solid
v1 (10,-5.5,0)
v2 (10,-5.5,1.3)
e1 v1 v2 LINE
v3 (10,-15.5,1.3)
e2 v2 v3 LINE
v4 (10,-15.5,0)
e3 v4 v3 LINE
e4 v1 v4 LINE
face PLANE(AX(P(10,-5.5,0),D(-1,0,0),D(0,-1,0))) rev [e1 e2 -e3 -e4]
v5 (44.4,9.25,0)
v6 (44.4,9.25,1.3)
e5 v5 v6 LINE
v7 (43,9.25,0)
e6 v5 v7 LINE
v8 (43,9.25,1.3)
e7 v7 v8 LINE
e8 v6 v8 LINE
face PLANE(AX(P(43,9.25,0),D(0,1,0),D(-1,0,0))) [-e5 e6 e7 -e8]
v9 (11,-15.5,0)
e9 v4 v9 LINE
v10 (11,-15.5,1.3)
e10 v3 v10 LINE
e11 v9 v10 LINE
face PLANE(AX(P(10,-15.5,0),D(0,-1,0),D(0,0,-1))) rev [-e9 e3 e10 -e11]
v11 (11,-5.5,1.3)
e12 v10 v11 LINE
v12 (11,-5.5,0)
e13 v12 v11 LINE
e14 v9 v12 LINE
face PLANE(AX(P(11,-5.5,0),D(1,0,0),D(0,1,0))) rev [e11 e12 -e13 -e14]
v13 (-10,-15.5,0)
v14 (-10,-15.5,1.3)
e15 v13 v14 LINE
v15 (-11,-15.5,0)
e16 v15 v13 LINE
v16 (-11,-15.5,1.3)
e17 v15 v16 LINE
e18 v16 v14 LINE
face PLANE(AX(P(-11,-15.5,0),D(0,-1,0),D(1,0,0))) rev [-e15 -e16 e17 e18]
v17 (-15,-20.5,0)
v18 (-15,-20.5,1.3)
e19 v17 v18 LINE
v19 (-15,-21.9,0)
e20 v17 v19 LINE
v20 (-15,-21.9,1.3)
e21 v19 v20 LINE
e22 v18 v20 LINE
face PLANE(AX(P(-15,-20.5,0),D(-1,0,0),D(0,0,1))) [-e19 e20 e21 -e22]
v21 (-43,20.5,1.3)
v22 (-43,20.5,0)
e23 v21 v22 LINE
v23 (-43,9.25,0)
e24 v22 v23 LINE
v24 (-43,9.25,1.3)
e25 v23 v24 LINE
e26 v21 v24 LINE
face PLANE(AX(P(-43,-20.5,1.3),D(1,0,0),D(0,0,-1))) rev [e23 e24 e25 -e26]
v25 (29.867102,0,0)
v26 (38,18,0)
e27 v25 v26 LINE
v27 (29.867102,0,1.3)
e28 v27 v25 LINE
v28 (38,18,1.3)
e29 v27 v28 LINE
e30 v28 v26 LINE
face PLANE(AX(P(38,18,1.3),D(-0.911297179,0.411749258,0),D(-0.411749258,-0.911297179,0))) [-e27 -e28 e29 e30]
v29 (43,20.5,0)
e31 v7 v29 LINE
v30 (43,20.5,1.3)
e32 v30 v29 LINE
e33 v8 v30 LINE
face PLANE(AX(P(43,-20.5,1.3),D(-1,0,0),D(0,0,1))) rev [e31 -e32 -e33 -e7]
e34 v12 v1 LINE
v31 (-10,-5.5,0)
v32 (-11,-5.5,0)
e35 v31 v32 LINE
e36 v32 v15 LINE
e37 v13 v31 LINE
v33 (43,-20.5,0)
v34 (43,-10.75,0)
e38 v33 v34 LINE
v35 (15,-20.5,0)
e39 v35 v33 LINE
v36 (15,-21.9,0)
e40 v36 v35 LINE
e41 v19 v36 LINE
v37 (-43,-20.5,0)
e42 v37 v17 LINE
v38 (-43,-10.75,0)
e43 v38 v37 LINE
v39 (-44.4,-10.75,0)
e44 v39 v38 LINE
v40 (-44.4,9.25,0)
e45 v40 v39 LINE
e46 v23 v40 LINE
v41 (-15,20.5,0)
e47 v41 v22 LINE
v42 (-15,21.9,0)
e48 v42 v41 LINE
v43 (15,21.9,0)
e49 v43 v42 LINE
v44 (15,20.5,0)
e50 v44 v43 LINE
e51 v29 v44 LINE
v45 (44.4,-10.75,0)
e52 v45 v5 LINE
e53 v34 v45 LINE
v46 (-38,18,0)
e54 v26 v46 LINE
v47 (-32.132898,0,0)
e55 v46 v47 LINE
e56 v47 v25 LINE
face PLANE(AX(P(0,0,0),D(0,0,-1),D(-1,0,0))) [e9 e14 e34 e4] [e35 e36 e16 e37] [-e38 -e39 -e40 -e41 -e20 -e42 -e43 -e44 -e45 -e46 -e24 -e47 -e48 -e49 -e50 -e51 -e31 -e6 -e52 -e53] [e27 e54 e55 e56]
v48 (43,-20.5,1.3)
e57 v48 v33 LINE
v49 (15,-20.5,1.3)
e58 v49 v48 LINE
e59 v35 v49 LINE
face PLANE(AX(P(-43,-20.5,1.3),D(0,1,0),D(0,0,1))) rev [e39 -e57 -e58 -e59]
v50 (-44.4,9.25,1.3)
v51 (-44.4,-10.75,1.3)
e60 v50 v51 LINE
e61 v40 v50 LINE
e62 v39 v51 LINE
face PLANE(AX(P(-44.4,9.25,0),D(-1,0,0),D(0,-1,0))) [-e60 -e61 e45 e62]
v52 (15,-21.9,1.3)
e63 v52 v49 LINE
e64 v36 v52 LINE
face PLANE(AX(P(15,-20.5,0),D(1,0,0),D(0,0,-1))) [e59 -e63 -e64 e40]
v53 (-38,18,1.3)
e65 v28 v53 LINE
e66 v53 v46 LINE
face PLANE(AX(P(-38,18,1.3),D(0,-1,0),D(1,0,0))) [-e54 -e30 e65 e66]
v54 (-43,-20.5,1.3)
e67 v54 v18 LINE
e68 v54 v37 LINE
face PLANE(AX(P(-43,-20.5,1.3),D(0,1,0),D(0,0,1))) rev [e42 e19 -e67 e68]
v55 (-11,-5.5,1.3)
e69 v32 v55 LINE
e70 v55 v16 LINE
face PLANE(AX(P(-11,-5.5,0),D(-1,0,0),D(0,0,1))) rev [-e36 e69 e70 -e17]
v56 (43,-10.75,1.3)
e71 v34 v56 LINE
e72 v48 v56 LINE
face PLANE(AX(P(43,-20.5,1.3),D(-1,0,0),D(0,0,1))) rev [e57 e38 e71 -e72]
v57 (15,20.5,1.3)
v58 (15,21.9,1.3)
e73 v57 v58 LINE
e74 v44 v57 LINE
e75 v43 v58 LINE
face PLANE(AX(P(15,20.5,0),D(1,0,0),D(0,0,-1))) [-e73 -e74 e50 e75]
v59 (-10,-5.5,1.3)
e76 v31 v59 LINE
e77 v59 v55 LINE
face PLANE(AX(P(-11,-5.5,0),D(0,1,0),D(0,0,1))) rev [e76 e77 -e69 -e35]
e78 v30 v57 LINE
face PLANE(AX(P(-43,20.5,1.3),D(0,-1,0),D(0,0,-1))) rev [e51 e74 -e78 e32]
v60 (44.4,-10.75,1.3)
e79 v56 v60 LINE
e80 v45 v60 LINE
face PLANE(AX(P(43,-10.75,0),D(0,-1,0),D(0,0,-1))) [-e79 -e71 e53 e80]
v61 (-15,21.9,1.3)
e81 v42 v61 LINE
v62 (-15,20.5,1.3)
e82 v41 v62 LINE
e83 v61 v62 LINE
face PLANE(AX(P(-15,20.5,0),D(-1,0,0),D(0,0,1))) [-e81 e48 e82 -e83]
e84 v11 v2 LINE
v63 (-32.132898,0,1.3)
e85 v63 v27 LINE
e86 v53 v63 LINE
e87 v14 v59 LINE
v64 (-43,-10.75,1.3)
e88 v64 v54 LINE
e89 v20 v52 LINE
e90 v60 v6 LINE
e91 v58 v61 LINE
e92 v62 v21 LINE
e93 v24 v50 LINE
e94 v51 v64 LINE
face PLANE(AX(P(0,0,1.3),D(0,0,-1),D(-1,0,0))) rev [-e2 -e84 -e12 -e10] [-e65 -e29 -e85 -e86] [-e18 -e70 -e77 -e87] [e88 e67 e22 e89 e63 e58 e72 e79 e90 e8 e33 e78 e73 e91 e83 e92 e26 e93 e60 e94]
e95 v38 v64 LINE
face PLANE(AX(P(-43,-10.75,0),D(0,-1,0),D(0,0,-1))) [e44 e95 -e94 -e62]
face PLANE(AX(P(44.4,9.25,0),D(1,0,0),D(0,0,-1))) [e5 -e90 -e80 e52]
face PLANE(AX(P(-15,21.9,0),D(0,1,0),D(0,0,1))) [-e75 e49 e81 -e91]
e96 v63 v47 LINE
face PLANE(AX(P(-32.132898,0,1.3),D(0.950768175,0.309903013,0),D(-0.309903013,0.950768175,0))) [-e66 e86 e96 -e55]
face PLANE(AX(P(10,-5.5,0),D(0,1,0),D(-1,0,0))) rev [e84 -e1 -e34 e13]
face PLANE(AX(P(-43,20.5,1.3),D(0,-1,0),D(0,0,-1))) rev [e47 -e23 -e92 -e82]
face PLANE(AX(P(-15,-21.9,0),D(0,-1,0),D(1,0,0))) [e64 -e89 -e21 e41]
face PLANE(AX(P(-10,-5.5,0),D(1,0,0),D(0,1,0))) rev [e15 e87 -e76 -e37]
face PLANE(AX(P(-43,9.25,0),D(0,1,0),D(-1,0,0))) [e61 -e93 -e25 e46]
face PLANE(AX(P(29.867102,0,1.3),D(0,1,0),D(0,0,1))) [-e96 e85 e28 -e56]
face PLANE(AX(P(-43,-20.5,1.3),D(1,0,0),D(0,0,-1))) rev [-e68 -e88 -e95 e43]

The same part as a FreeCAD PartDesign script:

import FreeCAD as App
import Part
import Sketcher
from FreeCAD import Vector
Q = App.Units.Quantity


def add_polygon(sketch, points):
    """Adds a closed chain of lines whose ends are joined by coincident constraints."""
    first, n = sketch.GeometryCount, len(points)
    for a, b in zip(points, points[1:] + points[:1]):
        sketch.addGeometry(Part.LineSegment(App.Vector(*a, 0), App.Vector(*b, 0)), False)
    for i in range(n):
        sketch.addConstraint(Sketcher.Constraint("Coincident", first + i, 2, first + (i + 1) % n, 1))

doc = App.newDocument("Part")
body = doc.addObject("PartDesign::Body", "Body")

# Sketch on XY plane
sketch1 = body.newObject("Sketcher::SketchObject", "Sketch")
sketch1.AttachmentSupport = (doc.getObject("XY_Plane"), [""])
sketch1.MapMode = "FlatFace"
add_polygon(sketch1, [(-43, 20), (-43, -20), (43, -20), (43, 20)])  # lines 0-3
add_polygon(sketch1, [(-32, 0), (-38, 18), (38, 18), (30, 0)])  # lines 4-7
sketch1.addConstraint(Sketcher.Constraint("Vertical", 0))
sketch1.addConstraint(Sketcher.Constraint("Horizontal", 1))
sketch1.addConstraint(Sketcher.Constraint("Vertical", 2))
sketch1.addConstraint(Sketcher.Constraint("Horizontal", 3))
sketch1.addConstraint(Sketcher.Constraint("Horizontal", 5))
sketch1.addConstraint(Sketcher.Constraint("Horizontal", 7))
sketch1.addConstraint(Sketcher.Constraint("Symmetric", 0, 2, 2, 2, -1, 1))
sketch1.addConstraint(Sketcher.Constraint("PointOnObject", 6, 2, -1))
sketch1.addConstraint(Sketcher.Constraint("DistanceX", 1, 1, 1, 2, Q("86 mm")))
sketch1.addConstraint(Sketcher.Constraint("DistanceX", 5, 1, 5, 2, Q("76 mm")))
sketch1.addConstraint(Sketcher.Constraint("DistanceX", 7, 2, 7, 1, Q("62 mm")))
sketch1.addConstraint(Sketcher.Constraint("DistanceY", 0, 2, 0, 1, Q("41 mm")))
sketch1.addConstraint(Sketcher.Constraint("DistanceX", 4, 2, -1, 1, Q("38 mm")))
sketch1.addConstraint(Sketcher.Constraint("DistanceY", -1, 1, 4, 2, Q("18 mm")))
sketch1.addConstraint(Sketcher.Constraint("Distance", 4, Q("18.93206 mm")))
pad1 = body.newObject("PartDesign::Pad", "Pad")
pad1.Profile = sketch1
pad1.Length = 1.3

# Sketch on XY plane
sketch2 = body.newObject("Sketcher::SketchObject", "Sketch001")
sketch2.AttachmentSupport = (doc.getObject("XY_Plane"), [""])
sketch2.MapMode = "FlatFace"
sketch2.AttachmentOffset = App.Placement(Vector(0, 0, 1.3), App.Rotation())
add_polygon(sketch2, [(-44.4, 9.2), (-44.4, -10.8), (-43, -10.8), (-43, 9.2)])  # lines 0-3
add_polygon(sketch2, [(43, 9.2), (43, -10.8), (44.4, -10.8), (44.4, 9.2)])  # lines 4-7
add_polygon(sketch2, [(-15, 21.9), (-15, 20.5), (15, 20.5), (15, 21.9)])  # lines 8-11
add_polygon(sketch2, [(-15, -20.5), (-15, -21.9), (15, -21.9), (15, -20.5)])  # lines 12-15
sketch2.addConstraint(Sketcher.Constraint("Vertical", 0))
sketch2.addConstraint(Sketcher.Constraint("Horizontal", 1))
sketch2.addConstraint(Sketcher.Constraint("Vertical", 2))
sketch2.addConstraint(Sketcher.Constraint("Horizontal", 3))
sketch2.addConstraint(Sketcher.Constraint("Vertical", 4))
sketch2.addConstraint(Sketcher.Constraint("Horizontal", 5))
sketch2.addConstraint(Sketcher.Constraint("Vertical", 6))
sketch2.addConstraint(Sketcher.Constraint("Horizontal", 7))
sketch2.addConstraint(Sketcher.Constraint("Vertical", 8))
sketch2.addConstraint(Sketcher.Constraint("Horizontal", 9))
sketch2.addConstraint(Sketcher.Constraint("Vertical", 10))
sketch2.addConstraint(Sketcher.Constraint("Horizontal", 11))
sketch2.addConstraint(Sketcher.Constraint("Vertical", 12))
sketch2.addConstraint(Sketcher.Constraint("Horizontal", 13))
sketch2.addConstraint(Sketcher.Constraint("Vertical", 14))
sketch2.addConstraint(Sketcher.Constraint("Horizontal", 15))
sketch2.addConstraint(Sketcher.Constraint("Symmetric", 10, 2, 12, 2, -1, 1))
sketch2.addConstraint(Sketcher.Constraint("Symmetric", 8, 2, 14, 2, -1, 1))
sketch2.addConstraint(Sketcher.Constraint("Symmetric", 1, 2, 4, 2, -2))
sketch2.addConstraint(Sketcher.Constraint("Symmetric", 3, 2, 6, 2, -2))
sketch2.addConstraint(Sketcher.Constraint("Vertical", 11, 2, 12, 2))
sketch2.addConstraint(Sketcher.Constraint("Equal", 7, 8))
sketch2.addConstraint(Sketcher.Constraint("DistanceX", 9, 1, 9, 2, Q("30 mm")))
sketch2.addConstraint(Sketcher.Constraint("DistanceY", 0, 2, 0, 1, Q("20 mm")))
sketch2.addConstraint(Sketcher.Constraint("DistanceX", 1, 1, 1, 2, Q("1.4 mm")))
sketch2.addConstraint(Sketcher.Constraint("DistanceX", 1, 2, -1, 1, Q("43 mm")))
sketch2.addConstraint(Sketcher.Constraint("DistanceY", -1, 1, 8, 2, Q("20.5 mm")))
sketch2.addConstraint(Sketcher.Constraint("DistanceY", 0, 2, -1, 1, Q("10.75 mm")))
pad2 = body.newObject("PartDesign::Pad", "Pad001")
pad2.Profile = sketch2
pad2.Length = 1.3
pad2.Reversed = True

# Sketch on XY plane
sketch3 = body.newObject("Sketcher::SketchObject", "Sketch002")
sketch3.AttachmentSupport = (doc.getObject("XY_Plane"), [""])
sketch3.MapMode = "FlatFace"
sketch3.AttachmentOffset = App.Placement(Vector(0, 0, 1.3), App.Rotation())
add_polygon(sketch3, [(-11, -5.5), (-11, -15.5), (-10, -15.5), (-10, -5.5)])  # lines 0-3
add_polygon(sketch3, [(10, -5.5), (10, -15.5), (11, -15.5), (11, -5.5)])  # lines 4-7
sketch3.addConstraint(Sketcher.Constraint("Vertical", 0))
sketch3.addConstraint(Sketcher.Constraint("Horizontal", 1))
sketch3.addConstraint(Sketcher.Constraint("Vertical", 2))
sketch3.addConstraint(Sketcher.Constraint("Horizontal", 3))
sketch3.addConstraint(Sketcher.Constraint("Vertical", 4))
sketch3.addConstraint(Sketcher.Constraint("Horizontal", 5))
sketch3.addConstraint(Sketcher.Constraint("Vertical", 6))
sketch3.addConstraint(Sketcher.Constraint("Horizontal", 7))
sketch3.addConstraint(Sketcher.Constraint("Symmetric", 1, 2, 4, 2, -2))
sketch3.addConstraint(Sketcher.Constraint("Symmetric", 3, 2, 6, 2, -2))
sketch3.addConstraint(Sketcher.Constraint("DistanceX", 1, 1, 1, 2, Q("1 mm")))
sketch3.addConstraint(Sketcher.Constraint("DistanceY", 0, 2, 0, 1, Q("10 mm")))
sketch3.addConstraint(Sketcher.Constraint("DistanceX", 0, 2, -1, 1, Q("11 mm")))
sketch3.addConstraint(Sketcher.Constraint("DistanceY", 0, 2, -1, 1, Q("15.5 mm")))
pocket1 = body.newObject("PartDesign::Pocket", "Pocket")
pocket1.Profile = sketch3
pocket1.Type = "ThroughAll"

doc.recompute()
